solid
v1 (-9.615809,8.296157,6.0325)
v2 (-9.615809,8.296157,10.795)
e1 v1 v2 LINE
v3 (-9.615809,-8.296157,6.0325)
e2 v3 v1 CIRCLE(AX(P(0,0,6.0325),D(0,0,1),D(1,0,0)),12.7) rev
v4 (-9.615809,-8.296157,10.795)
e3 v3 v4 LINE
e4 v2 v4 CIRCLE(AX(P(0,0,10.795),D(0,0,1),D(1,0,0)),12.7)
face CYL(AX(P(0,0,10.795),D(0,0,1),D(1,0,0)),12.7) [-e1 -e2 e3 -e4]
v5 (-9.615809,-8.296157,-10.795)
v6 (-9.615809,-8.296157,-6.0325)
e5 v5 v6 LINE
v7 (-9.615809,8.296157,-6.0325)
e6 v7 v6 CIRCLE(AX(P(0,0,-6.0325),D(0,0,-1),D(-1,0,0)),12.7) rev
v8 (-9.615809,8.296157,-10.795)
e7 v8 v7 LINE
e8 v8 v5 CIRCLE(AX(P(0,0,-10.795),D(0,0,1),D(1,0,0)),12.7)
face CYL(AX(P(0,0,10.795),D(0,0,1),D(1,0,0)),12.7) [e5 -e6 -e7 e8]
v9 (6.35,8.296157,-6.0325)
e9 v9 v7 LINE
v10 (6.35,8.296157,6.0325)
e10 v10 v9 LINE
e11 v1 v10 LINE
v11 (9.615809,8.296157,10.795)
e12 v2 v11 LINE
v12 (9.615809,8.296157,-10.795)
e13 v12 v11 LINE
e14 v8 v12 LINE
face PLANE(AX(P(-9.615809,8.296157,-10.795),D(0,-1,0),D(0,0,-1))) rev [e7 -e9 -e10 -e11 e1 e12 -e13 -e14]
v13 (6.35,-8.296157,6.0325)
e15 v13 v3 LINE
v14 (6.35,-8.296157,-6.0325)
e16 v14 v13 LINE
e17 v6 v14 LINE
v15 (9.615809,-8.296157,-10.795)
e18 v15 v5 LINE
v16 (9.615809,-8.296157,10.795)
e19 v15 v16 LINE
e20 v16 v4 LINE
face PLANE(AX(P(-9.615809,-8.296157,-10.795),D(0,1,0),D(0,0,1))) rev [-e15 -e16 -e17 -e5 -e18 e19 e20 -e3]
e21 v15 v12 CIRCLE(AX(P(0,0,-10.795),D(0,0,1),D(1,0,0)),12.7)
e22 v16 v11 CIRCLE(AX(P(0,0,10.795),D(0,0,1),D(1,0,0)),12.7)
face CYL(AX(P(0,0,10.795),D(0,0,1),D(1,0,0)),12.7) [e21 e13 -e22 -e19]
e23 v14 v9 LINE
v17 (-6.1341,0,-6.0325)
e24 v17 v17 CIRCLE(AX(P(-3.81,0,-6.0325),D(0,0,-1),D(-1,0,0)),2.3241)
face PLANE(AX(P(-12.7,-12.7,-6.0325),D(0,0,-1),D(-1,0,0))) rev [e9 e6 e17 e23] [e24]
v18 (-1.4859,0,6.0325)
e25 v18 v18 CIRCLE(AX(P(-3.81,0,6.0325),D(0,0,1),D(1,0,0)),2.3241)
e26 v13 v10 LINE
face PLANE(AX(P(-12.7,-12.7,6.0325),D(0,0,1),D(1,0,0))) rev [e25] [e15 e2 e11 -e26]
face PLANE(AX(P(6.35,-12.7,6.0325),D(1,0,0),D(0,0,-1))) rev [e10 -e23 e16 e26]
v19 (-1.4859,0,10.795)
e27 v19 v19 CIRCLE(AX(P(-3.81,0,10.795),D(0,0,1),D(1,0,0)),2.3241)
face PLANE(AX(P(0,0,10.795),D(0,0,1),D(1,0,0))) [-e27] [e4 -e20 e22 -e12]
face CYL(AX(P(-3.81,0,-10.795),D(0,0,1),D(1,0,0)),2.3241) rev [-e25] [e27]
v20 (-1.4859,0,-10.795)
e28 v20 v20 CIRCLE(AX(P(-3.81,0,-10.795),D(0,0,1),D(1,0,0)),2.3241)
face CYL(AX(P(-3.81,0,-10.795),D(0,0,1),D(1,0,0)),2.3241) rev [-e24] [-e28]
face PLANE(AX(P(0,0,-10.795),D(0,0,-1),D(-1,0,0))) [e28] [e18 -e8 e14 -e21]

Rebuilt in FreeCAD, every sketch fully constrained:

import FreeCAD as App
import Part
import Sketcher

V = App.Vector
Q = App.Units.Quantity


def add_polygon(sketch, points):
    """Adds a closed chain of lines whose ends are joined by coincident constraints."""
    first, n = sketch.GeometryCount, len(points)
    for a, b in zip(points, points[1:] + points[:1]):
        sketch.addGeometry(Part.LineSegment(App.Vector(*a, 0), App.Vector(*b, 0)), False)
    for i in range(n):
        sketch.addConstraint(Sketcher.Constraint("Coincident", first + i, 2, first + (i + 1) % n, 1))

doc = App.newDocument("Part")
params = doc.addObject("Spreadsheet::Sheet", "Params")
for row, (alias, value) in enumerate([
    ("sketch1_width", "0.5 in"),
    ("sketch1_height", "0.85 in"),
    ("revolution_angle", "360 deg"),
    ("sketch2_width", "0.75 in"),
    ("sketch2_height", "0.475 in"),
    ("sketch4_diameter", "0.183 in"),
], start=1):
    params.set(f"A{row}", alias)
    params.set(f"B{row}", "=" + value)
    params.setAlias(f"B{row}", alias)

body = doc.addObject("PartDesign::Body", "Body")

# Sketch on XZ plane
sketch1 = body.newObject("Sketcher::SketchObject", "Sketch")
sketch1.AttachmentSupport = (doc.getObject("XZ_Plane"), [""])
sketch1.MapMode = "FlatFace"
add_polygon(sketch1, [(0, -11), (0, 11), (13, 11), (13, -11)])  # lines 0-3
sketch1.addConstraint(Sketcher.Constraint("Vertical", 0))
sketch1.addConstraint(Sketcher.Constraint("Horizontal", 1))
sketch1.addConstraint(Sketcher.Constraint("Vertical", 2))
sketch1.addConstraint(Sketcher.Constraint("Horizontal", 3))
sketch1.addConstraint(Sketcher.Constraint("Symmetric", 0, 2, 3, 2, -1, 1))
sketch1.addConstraint(Sketcher.Constraint("DistanceX", 1, 1, 1, 2, Q("0.5 in")))
sketch1.addConstraint(Sketcher.Constraint("DistanceY", 0, 1, 0, 2, Q("0.85 in")))
sketch1.setExpression("Constraints[9]", "Params.sketch1_width")
sketch1.setExpression("Constraints[10]", "Params.sketch1_height")
revolution = body.newObject("PartDesign::Revolution", "Revolution")
revolution.Profile = sketch1
revolution.ReferenceAxis = (sketch1, ["V_Axis"])
revolution.setExpression("Angle", "Params.revolution_angle")

# Sketch on XZ plane
sketch2 = body.newObject("Sketcher::SketchObject", "Sketch001")
sketch2.AttachmentSupport = (doc.getObject("XZ_Plane"), [""])
sketch2.MapMode = "FlatFace"
add_polygon(sketch2, [(-13, -6), (-13, 6), (6, 6), (6, -6)])  # lines 0-3
sketch2.addConstraint(Sketcher.Constraint("Vertical", 0))
sketch2.addConstraint(Sketcher.Constraint("Horizontal", 1))
sketch2.addConstraint(Sketcher.Constraint("Vertical", 2))
sketch2.addConstraint(Sketcher.Constraint("Horizontal", 3))
sketch2.addConstraint(Sketcher.Constraint("DistanceX", 1, 1, 1, 2, Q("0.75 in")))
sketch2.addConstraint(Sketcher.Constraint("DistanceX", 0, 2, -1, 1, Q("0.5 in")))
sketch2.addConstraint(Sketcher.Constraint("DistanceY", 0, 1, 0, 2, Q("0.475 in")))
sketch2.addConstraint(Sketcher.Constraint("DistanceY", -1, 1, 0, 2, Q("0.2375 in")))
sketch2.setExpression("Constraints[8]", "Params.sketch2_width")
sketch2.setExpression("Constraints[10]", "Params.sketch2_height")
pocket1 = body.newObject("PartDesign::Pocket", "Pocket")
pocket1.Profile = sketch2
pocket1.Type = "ThroughAll"
pocket1.Midplane = True

# Sketch on XY plane
sketch3 = body.newObject("Sketcher::SketchObject", "Sketch002")
sketch3.AttachmentSupport = (doc.getObject("XY_Plane"), [""])
sketch3.MapMode = "FlatFace"
add_polygon(sketch3, [(-9.615809, 8.296157), (9.615809, 8.296157), (9.615809, 14.116385), (-9.615809, 13.939663)])  # lines 0-3
add_polygon(sketch3, [(-9.615809, -8.296157), (-9.615809, -13.614206), (9.615809, -13.614206), (9.615809, -8.296157)])  # lines 4-7
sketch3.addConstraint(Sketcher.Constraint("Horizontal", 0))
sketch3.addConstraint(Sketcher.Constraint("Vertical", 1))
sketch3.addConstraint(Sketcher.Constraint("Vertical", 3))
sketch3.addConstraint(Sketcher.Constraint("Vertical", 4))
sketch3.addConstraint(Sketcher.Constraint("Horizontal", 5))
sketch3.addConstraint(Sketcher.Constraint("Vertical", 6))
sketch3.addConstraint(Sketcher.Constraint("Horizontal", 7))
sketch3.addConstraint(Sketcher.Constraint("Symmetric", 3, 2, 6, 2, -1, 1))
sketch3.addConstraint(Sketcher.Constraint("Vertical", 3, 2, 4, 2))
sketch3.addConstraint(Sketcher.Constraint("Vertical", 1, 2, 5, 2))
sketch3.addConstraint(Sketcher.Constraint("DistanceX", 0, 1, 0, 2, Q("19.231618 mm")))
sketch3.addConstraint(Sketcher.Constraint("DistanceY", 1, 1, 1, 2, Q("5.820228 mm")))
sketch3.addConstraint(Sketcher.Constraint("DistanceY", 4, 2, 4, 1, Q("5.318049 mm")))
sketch3.addConstraint(Sketcher.Constraint("Distance", 2, Q("19.23243 mm")))
sketch3.addConstraint(Sketcher.Constraint("DistanceY", 4, 2, 2, 2, Q("27.553869 mm")))
pocket2 = body.newObject("PartDesign::Pocket", "Pocket001")
pocket2.Profile = sketch3
pocket2.Type = "ThroughAll"
pocket2.Midplane = True

# Sketch on XY plane
sketch4 = body.newObject("Sketcher::SketchObject", "Sketch003")
sketch4.AttachmentSupport = (doc.getObject("XY_Plane"), [""])
sketch4.MapMode = "FlatFace"
sketch4.AttachmentOffset = App.Placement(V(0, 0, 0.425 * 25.4), App.Rotation())
sketch4.addGeometry(Part.Circle(V(-3.8, 0, 0), V(0, 0, 1), 2.3), False)
sketch4.addConstraint(Sketcher.Constraint("PointOnObject", 0, 3, -1))
sketch4.addConstraint(Sketcher.Constraint("Diameter", 0, Q("0.183 in")))
sketch4.addConstraint(Sketcher.Constraint("DistanceX", 0, 3, -1, 1, Q("0.15 in")))
sketch4.setExpression("Constraints[1]", "Params.sketch4_diameter")
pocket3 = body.newObject("PartDesign::Pocket", "Pocket002")
pocket3.Profile = sketch4
pocket3.Type = "ThroughAll"
pocket3.Midplane = True

doc.recompute()
